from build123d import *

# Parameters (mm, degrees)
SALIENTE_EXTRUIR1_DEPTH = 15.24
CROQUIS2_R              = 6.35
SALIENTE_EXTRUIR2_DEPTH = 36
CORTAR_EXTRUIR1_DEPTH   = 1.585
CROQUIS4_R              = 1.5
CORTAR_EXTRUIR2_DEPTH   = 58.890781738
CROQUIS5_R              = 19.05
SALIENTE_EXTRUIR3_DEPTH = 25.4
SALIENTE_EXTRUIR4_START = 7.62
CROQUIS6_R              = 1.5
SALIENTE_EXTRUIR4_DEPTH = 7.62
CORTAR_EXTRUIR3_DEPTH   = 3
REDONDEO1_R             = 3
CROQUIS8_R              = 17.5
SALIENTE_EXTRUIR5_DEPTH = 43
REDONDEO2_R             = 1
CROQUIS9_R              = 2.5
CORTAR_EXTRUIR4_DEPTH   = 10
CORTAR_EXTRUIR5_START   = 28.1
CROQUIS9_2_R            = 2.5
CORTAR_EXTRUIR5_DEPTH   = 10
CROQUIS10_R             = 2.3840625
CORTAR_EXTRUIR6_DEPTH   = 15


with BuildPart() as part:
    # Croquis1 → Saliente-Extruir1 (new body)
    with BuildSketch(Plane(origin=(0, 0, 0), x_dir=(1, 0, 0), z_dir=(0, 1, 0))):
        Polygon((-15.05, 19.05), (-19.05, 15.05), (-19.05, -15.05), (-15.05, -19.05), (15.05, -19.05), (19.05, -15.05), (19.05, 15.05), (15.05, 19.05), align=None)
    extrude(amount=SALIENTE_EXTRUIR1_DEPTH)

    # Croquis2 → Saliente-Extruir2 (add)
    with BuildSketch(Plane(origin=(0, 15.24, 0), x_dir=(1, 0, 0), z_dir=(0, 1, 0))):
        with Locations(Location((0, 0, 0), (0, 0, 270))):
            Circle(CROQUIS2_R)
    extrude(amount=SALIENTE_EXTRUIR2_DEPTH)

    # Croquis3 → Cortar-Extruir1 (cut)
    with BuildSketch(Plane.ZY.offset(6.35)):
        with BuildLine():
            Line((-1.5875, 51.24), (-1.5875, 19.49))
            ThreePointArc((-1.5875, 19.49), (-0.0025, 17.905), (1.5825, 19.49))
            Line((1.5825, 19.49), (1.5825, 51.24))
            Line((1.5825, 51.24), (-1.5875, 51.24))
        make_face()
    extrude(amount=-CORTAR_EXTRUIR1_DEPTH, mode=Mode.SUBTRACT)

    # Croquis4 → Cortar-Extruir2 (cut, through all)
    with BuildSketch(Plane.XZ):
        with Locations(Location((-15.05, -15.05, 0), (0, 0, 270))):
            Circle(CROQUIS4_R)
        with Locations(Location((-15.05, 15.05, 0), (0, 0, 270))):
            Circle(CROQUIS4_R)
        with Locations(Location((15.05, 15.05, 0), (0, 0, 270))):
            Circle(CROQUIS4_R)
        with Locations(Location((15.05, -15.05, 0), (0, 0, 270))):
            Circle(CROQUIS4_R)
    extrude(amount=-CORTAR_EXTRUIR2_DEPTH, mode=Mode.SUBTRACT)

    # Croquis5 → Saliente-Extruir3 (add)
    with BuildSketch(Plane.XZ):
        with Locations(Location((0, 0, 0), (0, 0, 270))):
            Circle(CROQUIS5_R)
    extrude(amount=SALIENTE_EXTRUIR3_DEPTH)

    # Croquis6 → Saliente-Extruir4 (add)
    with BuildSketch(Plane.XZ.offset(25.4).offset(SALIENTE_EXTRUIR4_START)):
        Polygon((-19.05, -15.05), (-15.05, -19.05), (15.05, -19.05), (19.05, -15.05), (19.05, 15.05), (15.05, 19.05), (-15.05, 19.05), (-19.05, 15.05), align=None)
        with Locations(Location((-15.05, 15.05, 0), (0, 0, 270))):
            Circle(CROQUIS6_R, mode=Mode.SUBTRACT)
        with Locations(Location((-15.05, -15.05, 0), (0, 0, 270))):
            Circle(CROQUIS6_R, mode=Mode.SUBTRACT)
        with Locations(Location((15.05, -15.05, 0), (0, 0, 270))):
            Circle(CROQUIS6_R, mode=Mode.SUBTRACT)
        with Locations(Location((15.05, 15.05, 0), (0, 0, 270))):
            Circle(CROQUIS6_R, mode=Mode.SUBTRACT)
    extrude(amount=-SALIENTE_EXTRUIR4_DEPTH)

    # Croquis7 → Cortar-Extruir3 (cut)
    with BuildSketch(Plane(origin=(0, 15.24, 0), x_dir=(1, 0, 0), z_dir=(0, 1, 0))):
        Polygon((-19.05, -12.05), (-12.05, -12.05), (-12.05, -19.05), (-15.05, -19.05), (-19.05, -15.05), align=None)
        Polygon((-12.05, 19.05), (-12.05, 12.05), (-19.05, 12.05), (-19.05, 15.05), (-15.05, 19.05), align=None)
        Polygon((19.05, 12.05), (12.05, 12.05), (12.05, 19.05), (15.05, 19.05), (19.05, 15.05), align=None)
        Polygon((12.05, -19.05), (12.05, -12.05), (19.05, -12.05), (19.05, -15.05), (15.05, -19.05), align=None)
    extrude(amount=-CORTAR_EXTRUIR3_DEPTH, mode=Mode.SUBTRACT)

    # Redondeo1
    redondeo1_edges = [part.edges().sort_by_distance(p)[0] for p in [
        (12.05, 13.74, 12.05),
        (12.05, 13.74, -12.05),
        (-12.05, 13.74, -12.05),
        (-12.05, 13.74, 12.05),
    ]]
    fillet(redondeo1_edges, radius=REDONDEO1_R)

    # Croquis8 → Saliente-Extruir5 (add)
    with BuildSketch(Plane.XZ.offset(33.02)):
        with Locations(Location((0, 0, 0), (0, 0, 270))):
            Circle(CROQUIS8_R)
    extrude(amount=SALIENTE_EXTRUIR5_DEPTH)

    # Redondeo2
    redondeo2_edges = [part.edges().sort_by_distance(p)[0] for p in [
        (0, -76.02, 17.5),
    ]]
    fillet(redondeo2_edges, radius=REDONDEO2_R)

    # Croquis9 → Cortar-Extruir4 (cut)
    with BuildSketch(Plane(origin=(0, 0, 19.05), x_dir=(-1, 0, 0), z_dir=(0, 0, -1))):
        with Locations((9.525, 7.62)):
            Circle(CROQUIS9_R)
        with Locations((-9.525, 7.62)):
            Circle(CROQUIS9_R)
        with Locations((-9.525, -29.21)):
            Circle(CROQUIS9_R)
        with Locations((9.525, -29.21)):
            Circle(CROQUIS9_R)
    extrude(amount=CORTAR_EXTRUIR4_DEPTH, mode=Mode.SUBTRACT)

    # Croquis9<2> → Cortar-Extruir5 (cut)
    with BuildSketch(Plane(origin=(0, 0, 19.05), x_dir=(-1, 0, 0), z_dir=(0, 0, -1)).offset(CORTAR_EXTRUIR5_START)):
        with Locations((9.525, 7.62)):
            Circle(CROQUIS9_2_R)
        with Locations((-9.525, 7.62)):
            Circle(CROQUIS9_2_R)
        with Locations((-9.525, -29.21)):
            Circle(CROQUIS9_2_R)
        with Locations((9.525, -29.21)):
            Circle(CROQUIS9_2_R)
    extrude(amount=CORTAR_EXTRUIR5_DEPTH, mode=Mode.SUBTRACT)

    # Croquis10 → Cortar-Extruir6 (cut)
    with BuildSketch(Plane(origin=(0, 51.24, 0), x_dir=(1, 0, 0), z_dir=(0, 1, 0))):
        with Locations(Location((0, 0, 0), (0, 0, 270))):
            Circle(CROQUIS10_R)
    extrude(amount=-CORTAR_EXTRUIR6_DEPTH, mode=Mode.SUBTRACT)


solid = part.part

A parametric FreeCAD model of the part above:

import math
import FreeCAD as App
import Part
import Sketcher
from FreeCAD import Vector


def edges_at(feature, points):
    """Names of the edges that pass closest to the given points."""
    edges = feature.Shape.Edges
    near = lambda p: min(range(len(edges)), key=lambda i: edges[i].distToShape(Part.Vertex(*p))[0])
    return sorted({f"Edge{near(p) + 1}" for p in points})


def add_polygon(sketch, points):
    """Adds a closed chain of lines whose ends are joined by coincident constraints."""
    first, n = sketch.GeometryCount, len(points)
    for a, b in zip(points, points[1:] + points[:1]):
        sketch.addGeometry(Part.LineSegment(App.Vector(*a, 0), App.Vector(*b, 0)), False)
    for i in range(n):
        sketch.addConstraint(Sketcher.Constraint("Coincident", first + i, 2, first + (i + 1) % n, 1))

doc = App.newDocument("Part")
body = doc.addObject("PartDesign::Body", "Body")

sketch1 = body.newObject("Sketcher::SketchObject", "Sketch")
sketch1.AttachmentSupport = (doc.getObject("XZ_Plane"), [""])
sketch1.MapMode = "FlatFace"
add_polygon(sketch1, [(-15.05, -19.05), (-19.05, -15.05), (-19.05, 15.05), (-15.05, 19.05), (15.05, 19.05), (19.05, 15.05), (19.05, -15.05), (15.05, -19.05)])
sketch1.addConstraint([
    Sketcher.Constraint("Vertical", 1),
    Sketcher.Constraint("Horizontal", 3),
    Sketcher.Constraint("Vertical", 5),
    Sketcher.Constraint("Horizontal", 7),
    Sketcher.Constraint("Symmetric", 0, 2, 4, 2, -1, 1),
    Sketcher.Constraint("Symmetric", 2, 2, 6, 2, -1, 1),
    Sketcher.Constraint("Perpendicular", 0, 2),
    Sketcher.Constraint("Perpendicular", 2, 4),
    Sketcher.Constraint("Perpendicular", 4, 6),
    Sketcher.Constraint("Horizontal", 1, 2, 4, 2),
    Sketcher.Constraint("Vertical", 3, 2, 6, 2),
    Sketcher.Constraint("Equal", 7, 1),
    Sketcher.Constraint("DistanceX", 3, 1, 3, 2, 30.1),
    Sketcher.Constraint("DistanceX", 1, 2, 2, 2, 4.0),
])
pad1 = body.newObject("PartDesign::Pad", "Pad")
pad1.Profile = sketch1
pad1.Length = 15.24
pad1.Reversed = True

sketch2 = body.newObject("Sketcher::SketchObject", "Sketch001")
sketch2.AttachmentSupport = (doc.getObject("XZ_Plane"), [""])
sketch2.MapMode = "FlatFace"
sketch2.AttachmentOffset = App.Placement(Vector(0, 0, -15.24), App.Rotation())
sketch2.addGeometry(Part.Circle(Vector(0, 0, 0), Vector(0, 0, 1), 6.35), False)
sketch2.addConstraint([
    Sketcher.Constraint("Coincident", 0, 3, -1, 1),
    Sketcher.Constraint("Diameter", 0, 12.7),
])
pad2 = body.newObject("PartDesign::Pad", "Pad001")
pad2.Profile = sketch2
pad2.Length = 36
pad2.Reversed = True

sketch3 = body.newObject("Sketcher::SketchObject", "Sketch002")
sketch3.AttachmentSupport = (doc.getObject("YZ_Plane"), [""])
sketch3.MapMode = "FlatFace"
sketch3.AttachmentOffset = App.Placement(Vector(0, 0, -6.35), App.Rotation())
sketch3.addGeometry([
    Part.LineSegment(Vector(51.24, -1.5875, 0), Vector(19.49, -1.5875, 0)),
    Part.ArcOfCircle(Part.Circle(Vector(19.49, -0.0025, 0), Vector(0, 0, 1), 1.585), math.radians(90), math.radians(270)),
    Part.LineSegment(Vector(19.49, 1.5825, 0), Vector(51.24, 1.5825, 0)),
    Part.LineSegment(Vector(51.24, 1.5825, 0), Vector(51.24, -1.5875, 0)),
], False)
sketch3.addConstraint([
    Sketcher.Constraint("Tangent", 0, 2, 1, 2),
    Sketcher.Constraint("Tangent", 1, 1, 2, 1),
    Sketcher.Constraint("Coincident", 2, 2, 3, 1),
    Sketcher.Constraint("Coincident", 3, 2, 0, 1),
    Sketcher.Constraint("Horizontal", 0),
    Sketcher.Constraint("Horizontal", 2),
    Sketcher.Constraint("Vertical", 3),
    Sketcher.Constraint("Radius", 1, 1.585),
    Sketcher.Constraint("DistanceX", 0, 2, 0, 1, 31.75),
    Sketcher.Constraint("DistanceX", -1, 1, 1, 3, 19.49),
    Sketcher.Constraint("DistanceY", 1, 3, -1, 1, 0.0025),
])
pocket1 = body.newObject("PartDesign::Pocket", "Pocket")
pocket1.Profile = sketch3
pocket1.Length = 1.585
pocket1.Reversed = True

sketch4 = body.newObject("Sketcher::SketchObject", "Sketch003")
sketch4.AttachmentSupport = (doc.getObject("XZ_Plane"), [""])
sketch4.MapMode = "FlatFace"
sketch4.addGeometry([
    Part.Circle(Vector(-15.05, -15.05, 0), Vector(0, 0, 1), 1.5),
    Part.Circle(Vector(-15.05, 15.05, 0), Vector(0, 0, 1), 1.5),
    Part.Circle(Vector(15.05, 15.05, 0), Vector(0, 0, 1), 1.5),
    Part.Circle(Vector(15.05, -15.05, 0), Vector(0, 0, 1), 1.5),
], False)
sketch4.addConstraint([
    Sketcher.Constraint("Equal", 0, 1),
    Sketcher.Constraint("Equal", 1, 2),
    Sketcher.Constraint("Equal", 2, 3),
    Sketcher.Constraint("Symmetric", 0, 3, 2, 3, -1, 1),
    Sketcher.Constraint("Symmetric", 1, 3, 3, 3, -1, 1),
    Sketcher.Constraint("Symmetric", 1, 3, 2, 3, -2),
    Sketcher.Constraint("Diameter", 0, 3.0),
    Sketcher.Constraint("DistanceY", 0, 3, 1, 3, 30.1),
    Sketcher.Constraint("DistanceX", 1, 3, 2, 3, 30.1),
])
pocket2 = body.newObject("PartDesign::Pocket", "Pocket001")
pocket2.Profile = sketch4
pocket2.Type = "ThroughAll"

sketch5 = body.newObject("Sketcher::SketchObject", "Sketch004")
sketch5.AttachmentSupport = (doc.getObject("XZ_Plane"), [""])
sketch5.MapMode = "FlatFace"
sketch5.addGeometry(Part.Circle(Vector(0, 0, 0), Vector(0, 0, 1), 19.05), False)
sketch5.addConstraint([
    Sketcher.Constraint("Coincident", 0, 3, -1, 1),
    Sketcher.Constraint("Diameter", 0, 38.1),
])
pad3 = body.newObject("PartDesign::Pad", "Pad002")
pad3.Profile = sketch5
pad3.Length = 25.4

sketch6 = body.newObject("Sketcher::SketchObject", "Sketch005")
sketch6.AttachmentSupport = (doc.getObject("XZ_Plane"), [""])
sketch6.MapMode = "FlatFace"
sketch6.AttachmentOffset = App.Placement(Vector(0, 0, 33.02), App.Rotation())
add_polygon(sketch6, [(-19.05, -15.05), (-15.05, -19.05), (15.05, -19.05), (19.05, -15.05), (19.05, 15.05), (15.05, 19.05), (-15.05, 19.05), (-19.05, 15.05)])
sketch6.addGeometry(Part.Circle(Vector(-15.05, -15.05, 0), Vector(0, 0, 1), 1.5), False)
sketch6.addGeometry(Part.Circle(Vector(15.05, -15.05, 0), Vector(0, 0, 1), 1.5), False)
sketch6.addGeometry(Part.Circle(Vector(-15.05, 15.05, 0), Vector(0, 0, 1), 1.5), False)
sketch6.addGeometry(Part.Circle(Vector(15.05, 15.05, 0), Vector(0, 0, 1), 1.5), False)
sketch6.addConstraint([
    Sketcher.Constraint("Horizontal", 1),
    Sketcher.Constraint("Vertical", 3),
    Sketcher.Constraint("Horizontal", 5),
    Sketcher.Constraint("Vertical", 7),
    Sketcher.Constraint("Equal", 8, 9),
    Sketcher.Constraint("Equal", 9, 10),
    Sketcher.Constraint("Equal", 10, 11),
    Sketcher.Constraint("Symmetric", 9, 3, 10, 3, -1, 1),
    Sketcher.Constraint("Symmetric", 8, 3, 11, 3, -1, 1),
    Sketcher.Constraint("Symmetric", 0, 2, 4, 2, -1, 1),
    Sketcher.Constraint("Symmetric", 2, 2, 6, 2, -1, 1),
    Sketcher.Constraint("Symmetric", 8, 3, 9, 3, -2),
    Sketcher.Constraint("Perpendicular", 0, 2),
    Sketcher.Constraint("Perpendicular", 2, 4),
    Sketcher.Constraint("Perpendicular", 4, 6),
    Sketcher.Constraint("Horizontal", 9, 3, 2, 2),
    Sketcher.Constraint("Horizontal", 11, 3, 3, 2),
    Sketcher.Constraint("Vertical", 10, 3, 0, 2),
    Sketcher.Constraint("Vertical", 11, 3, 1, 2),
    Sketcher.Constraint("Equal", 5, 3),
    Sketcher.Constraint("Diameter", 8, 3.0),
    Sketcher.Constraint("DistanceX", 1, 1, 1, 2, 30.1),
    Sketcher.Constraint("DistanceY", 0, 2, 8, 3, 4.0),
])
pad4 = body.newObject("PartDesign::Pad", "Pad003")
pad4.Profile = sketch6
pad4.Length = 7.62
pad4.Reversed = True

sketch7 = body.newObject("Sketcher::SketchObject", "Sketch006")
sketch7.AttachmentSupport = (doc.getObject("XZ_Plane"), [""])
sketch7.MapMode = "FlatFace"
sketch7.AttachmentOffset = App.Placement(Vector(0, 0, -15.24), App.Rotation())
add_polygon(sketch7, [(-12.05, 12.05), (-19.05, 12.05), (-19.05, 15.05), (-15.05, 19.05), (-12.05, 19.05)])
add_polygon(sketch7, [(-12.05, -12.05), (-12.05, -19.05), (-15.05, -19.05), (-19.05, -15.05), (-19.05, -12.05)])
add_polygon(sketch7, [(12.05, -12.05), (19.05, -12.05), (19.05, -15.05), (15.05, -19.05), (12.05, -19.05)])
add_polygon(sketch7, [(12.05, 12.05), (12.05, 19.05), (15.05, 19.05), (19.05, 15.05), (19.05, 12.05)])
sketch7.addConstraint([
    Sketcher.Constraint("Horizontal", 0),
    Sketcher.Constraint("Vertical", 1),
    Sketcher.Constraint("Horizontal", 3),
    Sketcher.Constraint("Vertical", 4),
    Sketcher.Constraint("Vertical", 5),
    Sketcher.Constraint("Horizontal", 6),
    Sketcher.Constraint("Vertical", 8),
    Sketcher.Constraint("Horizontal", 9),
    Sketcher.Constraint("Horizontal", 10),
    Sketcher.Constraint("Vertical", 11),
    Sketcher.Constraint("Horizontal", 13),
    Sketcher.Constraint("Vertical", 14),
    Sketcher.Constraint("Vertical", 15),
    Sketcher.Constraint("Horizontal", 16),
    Sketcher.Constraint("Vertical", 18),
    Sketcher.Constraint("Horizontal", 19),
    Sketcher.Constraint("Symmetric", 0, 2, 10, 2, -1, 1),
    Sketcher.Constraint("Symmetric", 2, 2, 12, 2, -1, 1),
    Sketcher.Constraint("Symmetric", 5, 2, 15, 2, -1, 1),
    Sketcher.Constraint("Symmetric", 7, 2, 17, 2, -1, 1),
    Sketcher.Constraint("Symmetric", 8, 2, 10, 2, -2),
    Sketcher.Constraint("Symmetric", 6, 2, 12, 2, -2),
    Sketcher.Constraint("Symmetric", 4, 2, 19, 2, -2),
    Sketcher.Constraint("Perpendicular", 2, 7),
    Sketcher.Constraint("Perpendicular", 7, 12),
    Sketcher.Constraint("Perpendicular", 12, 17),
    Sketcher.Constraint("Horizontal", 7, 2, 11, 2),
    Sketcher.Constraint("Vertical", 14, 2, 15, 2),
    Sketcher.Constraint("Equal", 16, 1),
    Sketcher.Constraint("DistanceX", 0, 2, 0, 1, 7.0),
    Sketcher.Constraint("DistanceX", 3, 1, 3, 2, 3.0),
    Sketcher.Constraint("DistanceY", 5, 2, 4, 2, 31.1),
    Sketcher.Constraint("DistanceX", 9, 2, 10, 2, 31.1),
])
pocket3 = body.newObject("PartDesign::Pocket", "Pocket002")
pocket3.Profile = sketch7
pocket3.Length = 3
pocket3.Reversed = True
doc.recompute()

fillet = body.newObject("PartDesign::Fillet", "Fillet")
fillet.Base = (pocket3, edges_at(pocket3, [
    (12.05, 13.74, 12.05),
    (12.05, 13.74, -12.05),
    (-12.05, 13.74, -12.05),
    (-12.05, 13.74, 12.05),
]))
fillet.Radius = 3

sketch8 = body.newObject("Sketcher::SketchObject", "Sketch007")
sketch8.AttachmentSupport = (doc.getObject("XZ_Plane"), [""])
sketch8.MapMode = "FlatFace"
sketch8.AttachmentOffset = App.Placement(Vector(0, 0, 33.02), App.Rotation())
sketch8.addGeometry(Part.Circle(Vector(0, 0, 0), Vector(0, 0, 1), 17.5), False)
sketch8.addConstraint([
    Sketcher.Constraint("Coincident", 0, 3, -1, 1),
    Sketcher.Constraint("Diameter", 0, 35.0),
])
pad5 = body.newObject("PartDesign::Pad", "Pad004")
pad5.Profile = sketch8
pad5.Length = 43
doc.recompute()

fillet2 = body.newObject("PartDesign::Fillet", "Fillet001")
fillet2.Base = (pad5, edges_at(pad5, [(0, -76.02, 17.5)]))
fillet2.Radius = 1

sketch9 = body.newObject("Sketcher::SketchObject", "Sketch008")
sketch9.AttachmentSupport = (doc.getObject("XY_Plane"), [""])
sketch9.MapMode = "FlatFace"
sketch9.AttachmentOffset = App.Placement(Vector(0, 0, 19.05), App.Rotation())
sketch9.addGeometry([
    Part.Circle(Vector(-9.525, 7.62, 0), Vector(0, 0, 1), 2.5),
    Part.Circle(Vector(9.525, 7.62, 0), Vector(0, 0, 1), 2.5),
    Part.Circle(Vector(9.525, -29.21, 0), Vector(0, 0, 1), 2.5),
    Part.Circle(Vector(-9.525, -29.21, 0), Vector(0, 0, 1), 2.5),
], False)
sketch9.addConstraint([
    Sketcher.Constraint("Equal", 0, 1),
    Sketcher.Constraint("Equal", 1, 2),
    Sketcher.Constraint("Equal", 2, 3),
    Sketcher.Constraint("Symmetric", 0, 3, 1, 3, -2),
    Sketcher.Constraint("Symmetric", 2, 3, 3, 3, -2),
    Sketcher.Constraint("Vertical", 1, 3, 2, 3),
    Sketcher.Constraint("Diameter", 0, 5.0),
    Sketcher.Constraint("DistanceY", -1, 1, 0, 3, 7.62),
    Sketcher.Constraint("DistanceY", 2, 3, -1, 1, 29.21),
    Sketcher.Constraint("DistanceX", 0, 3, 1, 3, 19.05),
])
pocket4 = body.newObject("PartDesign::Pocket", "Pocket003")
pocket4.Profile = sketch9
pocket4.Length = 10

sketch10 = body.newObject("Sketcher::SketchObject", "Sketch009")
sketch10.AttachmentSupport = (doc.getObject("XY_Plane"), [""])
sketch10.MapMode = "FlatFace"
sketch10.AttachmentOffset = App.Placement(Vector(0, 0, -9.05), App.Rotation())
sketch10.addGeometry([
    Part.Circle(Vector(-9.525, 7.62, 0), Vector(0, 0, 1), 2.5),
    Part.Circle(Vector(9.525, 7.62, 0), Vector(0, 0, 1), 2.5),
    Part.Circle(Vector(9.525, -29.21, 0), Vector(0, 0, 1), 2.5),
    Part.Circle(Vector(-9.525, -29.21, 0), Vector(0, 0, 1), 2.5),
], False)
sketch10.addConstraint([
    Sketcher.Constraint("Equal", 0, 1),
    Sketcher.Constraint("Equal", 1, 2),
    Sketcher.Constraint("Equal", 2, 3),
    Sketcher.Constraint("Symmetric", 0, 3, 1, 3, -2),
    Sketcher.Constraint("Symmetric", 2, 3, 3, 3, -2),
    Sketcher.Constraint("Vertical", 1, 3, 2, 3),
    Sketcher.Constraint("Diameter", 0, 5.0),
    Sketcher.Constraint("DistanceY", -1, 1, 0, 3, 7.62),
    Sketcher.Constraint("DistanceY", 2, 3, -1, 1, 29.21),
    Sketcher.Constraint("DistanceX", 0, 3, 1, 3, 19.05),
])
pocket5 = body.newObject("PartDesign::Pocket", "Pocket004")
pocket5.Profile = sketch10
pocket5.Length = 10

sketch11 = body.newObject("Sketcher::SketchObject", "Sketch010")
sketch11.AttachmentSupport = (doc.getObject("XZ_Plane"), [""])
sketch11.MapMode = "FlatFace"
sketch11.AttachmentOffset = App.Placement(Vector(0, 0, -51.24), App.Rotation())
sketch11.addGeometry(Part.Circle(Vector(0, 0, 0), Vector(0, 0, 1), 2.384063), False)
sketch11.addConstraint([
    Sketcher.Constraint("Coincident", 0, 3, -1, 1),
    Sketcher.Constraint("Diameter", 0, 4.768125),
])
pocket6 = body.newObject("PartDesign::Pocket", "Pocket005")
pocket6.Profile = sketch11
pocket6.Length = 15
pocket6.Reversed = True

doc.recompute()
